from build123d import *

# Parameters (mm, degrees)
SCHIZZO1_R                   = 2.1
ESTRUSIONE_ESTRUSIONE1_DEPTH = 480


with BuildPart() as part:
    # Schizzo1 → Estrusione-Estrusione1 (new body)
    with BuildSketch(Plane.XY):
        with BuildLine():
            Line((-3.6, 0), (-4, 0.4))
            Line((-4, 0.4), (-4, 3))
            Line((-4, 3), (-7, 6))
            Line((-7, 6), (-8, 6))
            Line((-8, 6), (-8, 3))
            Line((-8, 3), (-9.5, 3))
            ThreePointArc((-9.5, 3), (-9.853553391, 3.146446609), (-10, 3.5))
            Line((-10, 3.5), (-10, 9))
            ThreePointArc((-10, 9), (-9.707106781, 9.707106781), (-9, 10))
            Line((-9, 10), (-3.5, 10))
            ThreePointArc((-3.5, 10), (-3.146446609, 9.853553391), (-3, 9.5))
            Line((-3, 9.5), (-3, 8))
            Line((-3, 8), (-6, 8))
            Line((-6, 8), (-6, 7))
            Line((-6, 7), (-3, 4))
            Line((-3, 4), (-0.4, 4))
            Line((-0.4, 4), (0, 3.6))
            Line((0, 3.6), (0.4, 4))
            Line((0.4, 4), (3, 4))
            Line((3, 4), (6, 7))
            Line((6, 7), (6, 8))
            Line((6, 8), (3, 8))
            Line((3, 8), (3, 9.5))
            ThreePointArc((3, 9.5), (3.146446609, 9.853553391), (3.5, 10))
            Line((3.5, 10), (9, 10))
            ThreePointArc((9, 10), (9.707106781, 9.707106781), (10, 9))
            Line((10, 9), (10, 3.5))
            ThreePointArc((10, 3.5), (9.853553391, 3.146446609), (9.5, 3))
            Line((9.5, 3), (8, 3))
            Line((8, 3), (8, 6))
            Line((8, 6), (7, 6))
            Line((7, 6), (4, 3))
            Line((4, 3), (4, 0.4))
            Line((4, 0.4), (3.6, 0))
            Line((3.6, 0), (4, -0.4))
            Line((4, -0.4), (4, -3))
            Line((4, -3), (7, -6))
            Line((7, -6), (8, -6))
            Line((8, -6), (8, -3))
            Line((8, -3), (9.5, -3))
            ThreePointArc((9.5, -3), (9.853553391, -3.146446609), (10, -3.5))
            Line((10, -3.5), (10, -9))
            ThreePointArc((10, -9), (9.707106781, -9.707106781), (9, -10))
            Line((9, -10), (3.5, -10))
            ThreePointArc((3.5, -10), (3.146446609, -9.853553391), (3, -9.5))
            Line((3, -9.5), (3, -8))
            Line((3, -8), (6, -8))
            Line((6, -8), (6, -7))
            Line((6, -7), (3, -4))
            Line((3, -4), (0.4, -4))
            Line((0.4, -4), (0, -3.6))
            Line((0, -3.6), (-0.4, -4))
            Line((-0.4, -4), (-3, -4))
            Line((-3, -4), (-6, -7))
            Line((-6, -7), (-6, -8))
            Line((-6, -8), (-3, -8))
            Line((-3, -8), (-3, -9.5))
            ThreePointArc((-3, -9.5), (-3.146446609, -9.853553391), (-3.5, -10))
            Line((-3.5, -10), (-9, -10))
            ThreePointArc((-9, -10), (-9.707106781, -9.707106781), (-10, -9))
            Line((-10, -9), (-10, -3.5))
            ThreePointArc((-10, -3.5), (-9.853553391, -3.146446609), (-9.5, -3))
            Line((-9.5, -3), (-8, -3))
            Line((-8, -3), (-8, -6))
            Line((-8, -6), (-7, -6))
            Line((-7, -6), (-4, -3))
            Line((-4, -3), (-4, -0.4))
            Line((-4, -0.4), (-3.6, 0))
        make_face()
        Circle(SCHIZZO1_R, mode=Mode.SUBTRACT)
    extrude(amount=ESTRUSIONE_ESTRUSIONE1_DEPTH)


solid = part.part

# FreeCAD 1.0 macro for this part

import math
import FreeCAD as App
import Part
import Sketcher
Q = App.Units.Quantity

doc = App.newDocument("Part")
body = doc.addObject("PartDesign::Body", "Body")

sketch1 = body.newObject("Sketcher::SketchObject", "Sketch")
sketch1.AttachmentSupport = (doc.getObject("XY_Plane"), [""])
sketch1.MapMode = "FlatFace"
sketch1.addGeometry([
    Part.LineSegment(App.Vector(-4, 0.4, 0), App.Vector(-3.6, 0, 0)),
    Part.LineSegment(App.Vector(-3.6, 0, 0), App.Vector(-4, -0.4, 0)),
    Part.LineSegment(App.Vector(-4, -0.4, 0), App.Vector(-4, -3, 0)),
    Part.LineSegment(App.Vector(-4, -3, 0), App.Vector(-7, -6, 0)),
    Part.LineSegment(App.Vector(-7, -6, 0), App.Vector(-8, -6, 0)),
    Part.LineSegment(App.Vector(-8, -6, 0), App.Vector(-8, -3, 0)),
    Part.LineSegment(App.Vector(-8, -3, 0), App.Vector(-9.5, -3, 0)),
    Part.ArcOfCircle(Part.Circle(App.Vector(-9.5, -3.5, 0), App.Vector(0, 0, 1), 0.5), math.radians(90), math.radians(180)),
    Part.LineSegment(App.Vector(-10, -3.5, 0), App.Vector(-10, -9, 0)),
    Part.ArcOfCircle(Part.Circle(App.Vector(-9, -9, 0), App.Vector(0, 0, 1), 1), math.radians(-180), math.radians(-90)),
    Part.LineSegment(App.Vector(-9, -10, 0), App.Vector(-3.5, -10, 0)),
    Part.ArcOfCircle(Part.Circle(App.Vector(-3.5, -9.5, 0), App.Vector(0, 0, 1), 0.5), math.radians(-90), math.radians(0)),
    Part.LineSegment(App.Vector(-3, -9.5, 0), App.Vector(-3, -8, 0)),
    Part.LineSegment(App.Vector(-3, -8, 0), App.Vector(-6, -8, 0)),
    Part.LineSegment(App.Vector(-6, -8, 0), App.Vector(-6, -7, 0)),
    Part.LineSegment(App.Vector(-6, -7, 0), App.Vector(-3, -4, 0)),
    Part.LineSegment(App.Vector(-3, -4, 0), App.Vector(-0.4, -4, 0)),
    Part.LineSegment(App.Vector(-0.4, -4, 0), App.Vector(0, -3.6, 0)),
    Part.LineSegment(App.Vector(0, -3.6, 0), App.Vector(0.4, -4, 0)),
    Part.LineSegment(App.Vector(0.4, -4, 0), App.Vector(3, -4, 0)),
    Part.LineSegment(App.Vector(3, -4, 0), App.Vector(6, -7, 0)),
    Part.LineSegment(App.Vector(6, -7, 0), App.Vector(6, -8, 0)),
    Part.LineSegment(App.Vector(6, -8, 0), App.Vector(3, -8, 0)),
    Part.LineSegment(App.Vector(3, -8, 0), App.Vector(3, -9.5, 0)),
    Part.ArcOfCircle(Part.Circle(App.Vector(3.5, -9.5, 0), App.Vector(0, 0, 1), 0.5), math.radians(180), math.radians(270)),
    Part.LineSegment(App.Vector(3.5, -10, 0), App.Vector(9, -10, 0)),
    Part.ArcOfCircle(Part.Circle(App.Vector(9, -9, 0), App.Vector(0, 0, 1), 1), math.radians(-90), math.radians(0)),
    Part.LineSegment(App.Vector(10, -9, 0), App.Vector(10, -3.5, 0)),
    Part.ArcOfCircle(Part.Circle(App.Vector(9.5, -3.5, 0), App.Vector(0, 0, 1), 0.5), math.radians(0), math.radians(90)),
    Part.LineSegment(App.Vector(9.5, -3, 0), App.Vector(8, -3, 0)),
    Part.LineSegment(App.Vector(8, -3, 0), App.Vector(8, -6, 0)),
    Part.LineSegment(App.Vector(8, -6, 0), App.Vector(7, -6, 0)),
    Part.LineSegment(App.Vector(7, -6, 0), App.Vector(4, -3, 0)),
    Part.LineSegment(App.Vector(4, -3, 0), App.Vector(4, -0.4, 0)),
    Part.LineSegment(App.Vector(4, -0.4, 0), App.Vector(3.6, 0, 0)),
    Part.LineSegment(App.Vector(3.6, 0, 0), App.Vector(4, 0.4, 0)),
    Part.LineSegment(App.Vector(4, 0.4, 0), App.Vector(4, 3, 0)),
    Part.LineSegment(App.Vector(4, 3, 0), App.Vector(7, 6, 0)),
    Part.LineSegment(App.Vector(7, 6, 0), App.Vector(8, 6, 0)),
    Part.LineSegment(App.Vector(8, 6, 0), App.Vector(8, 3, 0)),
    Part.LineSegment(App.Vector(8, 3, 0), App.Vector(9.5, 3, 0)),
    Part.ArcOfCircle(Part.Circle(App.Vector(9.5, 3.5, 0), App.Vector(0, 0, 1), 0.5), math.radians(-90), math.radians(0)),
    Part.LineSegment(App.Vector(10, 3.5, 0), App.Vector(10, 9, 0)),
    Part.ArcOfCircle(Part.Circle(App.Vector(9, 9, 0), App.Vector(0, 0, 1), 1), math.radians(0), math.radians(90)),
    Part.LineSegment(App.Vector(9, 10, 0), App.Vector(3.5, 10, 0)),
    Part.ArcOfCircle(Part.Circle(App.Vector(3.5, 9.5, 0), App.Vector(0, 0, 1), 0.5), math.radians(90), math.radians(180)),
    Part.LineSegment(App.Vector(3, 9.5, 0), App.Vector(3, 8, 0)),
    Part.LineSegment(App.Vector(3, 8, 0), App.Vector(6, 8, 0)),
    Part.LineSegment(App.Vector(6, 8, 0), App.Vector(6, 7, 0)),
    Part.LineSegment(App.Vector(6, 7, 0), App.Vector(3, 4, 0)),
    Part.LineSegment(App.Vector(3, 4, 0), App.Vector(0.4, 4, 0)),
    Part.LineSegment(App.Vector(0.4, 4, 0), App.Vector(0, 3.6, 0)),
    Part.LineSegment(App.Vector(0, 3.6, 0), App.Vector(-0.4, 4, 0)),
    Part.LineSegment(App.Vector(-0.4, 4, 0), App.Vector(-3, 4, 0)),
    Part.LineSegment(App.Vector(-3, 4, 0), App.Vector(-6, 7, 0)),
    Part.LineSegment(App.Vector(-6, 7, 0), App.Vector(-6, 8, 0)),
    Part.LineSegment(App.Vector(-6, 8, 0), App.Vector(-3, 8, 0)),
    Part.LineSegment(App.Vector(-3, 8, 0), App.Vector(-3, 9.5, 0)),
    Part.ArcOfCircle(Part.Circle(App.Vector(-3.5, 9.5, 0), App.Vector(0, 0, 1), 0.5), math.radians(0), math.radians(90)),
    Part.LineSegment(App.Vector(-3.5, 10, 0), App.Vector(-9, 10, 0)),
    Part.ArcOfCircle(Part.Circle(App.Vector(-9, 9, 0), App.Vector(0, 0, 1), 1), math.radians(90), math.radians(180)),
    Part.LineSegment(App.Vector(-10, 9, 0), App.Vector(-10, 3.5, 0)),
    Part.ArcOfCircle(Part.Circle(App.Vector(-9.5, 3.5, 0), App.Vector(0, 0, 1), 0.5), math.radians(180), math.radians(270)),
    Part.LineSegment(App.Vector(-9.5, 3, 0), App.Vector(-8, 3, 0)),
    Part.LineSegment(App.Vector(-8, 3, 0), App.Vector(-8, 6, 0)),
    Part.LineSegment(App.Vector(-8, 6, 0), App.Vector(-7, 6, 0)),
    Part.LineSegment(App.Vector(-7, 6, 0), App.Vector(-4, 3, 0)),
    Part.LineSegment(App.Vector(-4, 3, 0), App.Vector(-4, 0.4, 0)),
    Part.Circle(App.Vector(0, 0, 0), App.Vector(0, 0, 1), 2.1),
], False)
sketch1.addConstraint([
    Sketcher.Constraint("Coincident", 0, 2, 1, 1),
    Sketcher.Constraint("Coincident", 1, 2, 2, 1),
    Sketcher.Constraint("Coincident", 2, 2, 3, 1),
    Sketcher.Constraint("Coincident", 3, 2, 4, 1),
    Sketcher.Constraint("Coincident", 4, 2, 5, 1),
    Sketcher.Constraint("Coincident", 5, 2, 6, 1),
    Sketcher.Constraint("Tangent", 6, 2, 7, 1),
    Sketcher.Constraint("Tangent", 7, 2, 8, 1),
    Sketcher.Constraint("Tangent", 8, 2, 9, 1),
    Sketcher.Constraint("Tangent", 9, 2, 10, 1),
    Sketcher.Constraint("Tangent", 10, 2, 11, 1),
    Sketcher.Constraint("Tangent", 11, 2, 12, 1),
    Sketcher.Constraint("Coincident", 12, 2, 13, 1),
    Sketcher.Constraint("Coincident", 13, 2, 14, 1),
    Sketcher.Constraint("Coincident", 14, 2, 15, 1),
    Sketcher.Constraint("Coincident", 15, 2, 16, 1),
    Sketcher.Constraint("Coincident", 16, 2, 17, 1),
    Sketcher.Constraint("Coincident", 17, 2, 18, 1),
    Sketcher.Constraint("Coincident", 18, 2, 19, 1),
    Sketcher.Constraint("Coincident", 19, 2, 20, 1),
    Sketcher.Constraint("Coincident", 20, 2, 21, 1),
    Sketcher.Constraint("Coincident", 21, 2, 22, 1),
    Sketcher.Constraint("Coincident", 22, 2, 23, 1),
    Sketcher.Constraint("Tangent", 23, 2, 24, 1),
    Sketcher.Constraint("Tangent", 24, 2, 25, 1),
    Sketcher.Constraint("Tangent", 25, 2, 26, 1),
    Sketcher.Constraint("Tangent", 26, 2, 27, 1),
    Sketcher.Constraint("Tangent", 27, 2, 28, 1),
    Sketcher.Constraint("Tangent", 28, 2, 29, 1),
    Sketcher.Constraint("Coincident", 29, 2, 30, 1),
    Sketcher.Constraint("Coincident", 30, 2, 31, 1),
    Sketcher.Constraint("Coincident", 31, 2, 32, 1),
    Sketcher.Constraint("Coincident", 32, 2, 33, 1),
    Sketcher.Constraint("Coincident", 33, 2, 34, 1),
    Sketcher.Constraint("Coincident", 34, 2, 35, 1),
    Sketcher.Constraint("Coincident", 35, 2, 36, 1),
    Sketcher.Constraint("Coincident", 36, 2, 37, 1),
    Sketcher.Constraint("Coincident", 37, 2, 38, 1),
    Sketcher.Constraint("Coincident", 38, 2, 39, 1),
    Sketcher.Constraint("Coincident", 39, 2, 40, 1),
    Sketcher.Constraint("Tangent", 40, 2, 41, 1),
    Sketcher.Constraint("Tangent", 41, 2, 42, 1),
    Sketcher.Constraint("Tangent", 42, 2, 43, 1),
    Sketcher.Constraint("Tangent", 43, 2, 44, 1),
    Sketcher.Constraint("Tangent", 44, 2, 45, 1),
    Sketcher.Constraint("Tangent", 45, 2, 46, 1),
    Sketcher.Constraint("Coincident", 46, 2, 47, 1),
    Sketcher.Constraint("Coincident", 47, 2, 48, 1),
    Sketcher.Constraint("Coincident", 48, 2, 49, 1),
    Sketcher.Constraint("Coincident", 49, 2, 50, 1),
    Sketcher.Constraint("Coincident", 50, 2, 51, 1),
    Sketcher.Constraint("Coincident", 51, 2, 52, 1),
    Sketcher.Constraint("Coincident", 52, 2, 53, 1),
    Sketcher.Constraint("Coincident", 53, 2, 54, 1),
    Sketcher.Constraint("Coincident", 54, 2, 55, 1),
    Sketcher.Constraint("Coincident", 55, 2, 56, 1),
    Sketcher.Constraint("Coincident", 56, 2, 57, 1),
    Sketcher.Constraint("Tangent", 57, 2, 58, 1),
    Sketcher.Constraint("Tangent", 58, 2, 59, 1),
    Sketcher.Constraint("Tangent", 59, 2, 60, 1),
    Sketcher.Constraint("Tangent", 60, 2, 61, 1),
    Sketcher.Constraint("Tangent", 61, 2, 62, 1),
    Sketcher.Constraint("Tangent", 62, 2, 63, 1),
    Sketcher.Constraint("Coincident", 63, 2, 64, 1),
    Sketcher.Constraint("Coincident", 64, 2, 65, 1),
    Sketcher.Constraint("Coincident", 65, 2, 66, 1),
    Sketcher.Constraint("Coincident", 66, 2, 67, 1),
    Sketcher.Constraint("Coincident", 67, 2, 0, 1),
    Sketcher.Constraint("Vertical", 2),
    Sketcher.Constraint("Horizontal", 4),
    Sketcher.Constraint("Vertical", 5),
    Sketcher.Constraint("Horizontal", 6),
    Sketcher.Constraint("Vertical", 8),
    Sketcher.Constraint("Horizontal", 10),
    Sketcher.Constraint("Vertical", 12),
    Sketcher.Constraint("Horizontal", 13),
    Sketcher.Constraint("Vertical", 14),
    Sketcher.Constraint("Horizontal", 16),
    Sketcher.Constraint("Horizontal", 19),
    Sketcher.Constraint("Vertical", 21),
    Sketcher.Constraint("Horizontal", 22),
    Sketcher.Constraint("Vertical", 23),
    Sketcher.Constraint("Horizontal", 25),
    Sketcher.Constraint("Vertical", 27),
    Sketcher.Constraint("Horizontal", 29),
    Sketcher.Constraint("Vertical", 30),
    Sketcher.Constraint("Horizontal", 31),
    Sketcher.Constraint("Vertical", 33),
    Sketcher.Constraint("Vertical", 36),
    Sketcher.Constraint("Horizontal", 38),
    Sketcher.Constraint("Vertical", 39),
    Sketcher.Constraint("Horizontal", 40),
    Sketcher.Constraint("Vertical", 42),
    Sketcher.Constraint("Horizontal", 44),
    Sketcher.Constraint("Vertical", 46),
    Sketcher.Constraint("Horizontal", 47),
    Sketcher.Constraint("Vertical", 48),
    Sketcher.Constraint("Horizontal", 50),
    Sketcher.Constraint("Horizontal", 53),
    Sketcher.Constraint("Vertical", 55),
    Sketcher.Constraint("Horizontal", 56),
    Sketcher.Constraint("Vertical", 57),
    Sketcher.Constraint("Horizontal", 59),
    Sketcher.Constraint("Vertical", 61),
    Sketcher.Constraint("Horizontal", 63),
    Sketcher.Constraint("Vertical", 64),
    Sketcher.Constraint("Horizontal", 65),
    Sketcher.Constraint("Vertical", 67),
    Sketcher.Constraint("Coincident", 68, 3, -1, 1),
    Sketcher.Constraint("Equal", 7, 11),
    Sketcher.Constraint("Equal", 11, 24),
    Sketcher.Constraint("Equal", 9, 26),
    Sketcher.Constraint("Equal", 24, 28),
    Sketcher.Constraint("Equal", 28, 41),
    Sketcher.Constraint("Equal", 26, 43),
    Sketcher.Constraint("Equal", 41, 45),
    Sketcher.Constraint("Equal", 45, 58),
    Sketcher.Constraint("Equal", 43, 60),
    Sketcher.Constraint("Equal", 58, 62),
    Sketcher.Constraint("Symmetric", 7, 3, 41, 3, -1, 1),
    Sketcher.Constraint("Symmetric", 11, 3, 45, 3, -1, 1),
    Sketcher.Constraint("Symmetric", 24, 3, 58, 3, -1, 1),
    Sketcher.Constraint("Symmetric", 28, 3, 62, 3, -1, 1),
    Sketcher.Constraint("Symmetric", 0, 2, 34, 2, -1, 1),
    Sketcher.Constraint("Symmetric", 1, 2, 35, 2, -1, 1),
    Sketcher.Constraint("Symmetric", 3, 2, 37, 2, -1, 1),
    Sketcher.Constraint("Symmetric", 13, 2, 47, 2, -1, 1),
    Sketcher.Constraint("Symmetric", 15, 2, 49, 2, -1, 1),
    Sketcher.Constraint("Symmetric", 17, 2, 51, 2, -1, 1),
    Sketcher.Constraint("Symmetric", 18, 2, 52, 2, -1, 1),
    Sketcher.Constraint("Symmetric", 20, 2, 54, 2, -1, 1),
    Sketcher.Constraint("Symmetric", 30, 2, 64, 2, -1, 1),
    Sketcher.Constraint("Symmetric", 32, 2, 66, 2, -1, 1),
    Sketcher.Constraint("Symmetric", 11, 3, 24, 3, -2),
    Sketcher.Constraint("Symmetric", 7, 3, 28, 3, -2),
    Sketcher.Constraint("Symmetric", 16, 2, 18, 2, -2),
    Sketcher.Constraint("Symmetric", 14, 2, 20, 2, -2),
    Sketcher.Constraint("Symmetric", 4, 2, 30, 2, -2),
    Sketcher.Constraint("Symmetric", 2, 2, 32, 2, -2),
    Sketcher.Constraint("PointOnObject", 0, 2, -1),
    Sketcher.Constraint("PointOnObject", 17, 2, -2),
    Sketcher.Constraint("Perpendicular", 0, 1),
    Sketcher.Constraint("Parallel", 1, 3),
    Sketcher.Constraint("Parallel", 3, 15),
    Sketcher.Constraint("Parallel", 15, 17),
    Sketcher.Constraint("Perpendicular", 17, 18),
    Sketcher.Constraint("Parallel", 18, 20),
    Sketcher.Constraint("Parallel", 20, 32),
    Sketcher.Constraint("Parallel", 32, 34),
    Sketcher.Constraint("Parallel", 35, 37),
    Sketcher.Constraint("Parallel", 37, 49),
    Sketcher.Constraint("Parallel", 49, 51),
    Sketcher.Constraint("Parallel", 52, 54),
    Sketcher.Constraint("Parallel", 54, 66),
    Sketcher.Constraint("Horizontal", 2, 2, 5, 2),
    Sketcher.Constraint("Horizontal", 13, 2, 21, 2),
    Sketcher.Constraint("Horizontal", 47, 2, 55, 2),
    Sketcher.Constraint("Vertical", 12, 2, 15, 2),
    Sketcher.Constraint("Vertical", 30, 2, 38, 2),
    Sketcher.Constraint("Equal", 53, 2),
    Sketcher.Constraint("Equal", 56, 5),
    Sketcher.Constraint("Equal", 59, 8),
    Sketcher.Constraint("Equal", 63, 12),
    Sketcher.Constraint("Equal", 65, 14),
    Sketcher.Constraint("Equal", 1, 17),
    Sketcher.Constraint("Radius", 9, Q("1 mm")),
    Sketcher.Constraint("Diameter", 68, Q("4.2 mm")),
    Sketcher.Constraint("Radius", 7, Q("0.5 mm")),
    Sketcher.Constraint("DistanceX", 4, 2, 4, 1, Q("1 mm")),
    Sketcher.Constraint("DistanceX", 13, 2, 13, 1, Q("3 mm")),
    Sketcher.Constraint("DistanceX", 6, 2, 6, 1, Q("1.5 mm")),
    Sketcher.Constraint("DistanceX", 10, 1, 10, 2, Q("5.5 mm")),
    Sketcher.Constraint("DistanceX", 16, 1, 16, 2, Q("2.6 mm")),
    Sketcher.Constraint("DistanceX", 9, 3, -1, 1, Q("9 mm")),
])
pad1 = body.newObject("PartDesign::Pad", "Pad")
pad1.Profile = sketch1
pad1.Length = 480

doc.recompute()
